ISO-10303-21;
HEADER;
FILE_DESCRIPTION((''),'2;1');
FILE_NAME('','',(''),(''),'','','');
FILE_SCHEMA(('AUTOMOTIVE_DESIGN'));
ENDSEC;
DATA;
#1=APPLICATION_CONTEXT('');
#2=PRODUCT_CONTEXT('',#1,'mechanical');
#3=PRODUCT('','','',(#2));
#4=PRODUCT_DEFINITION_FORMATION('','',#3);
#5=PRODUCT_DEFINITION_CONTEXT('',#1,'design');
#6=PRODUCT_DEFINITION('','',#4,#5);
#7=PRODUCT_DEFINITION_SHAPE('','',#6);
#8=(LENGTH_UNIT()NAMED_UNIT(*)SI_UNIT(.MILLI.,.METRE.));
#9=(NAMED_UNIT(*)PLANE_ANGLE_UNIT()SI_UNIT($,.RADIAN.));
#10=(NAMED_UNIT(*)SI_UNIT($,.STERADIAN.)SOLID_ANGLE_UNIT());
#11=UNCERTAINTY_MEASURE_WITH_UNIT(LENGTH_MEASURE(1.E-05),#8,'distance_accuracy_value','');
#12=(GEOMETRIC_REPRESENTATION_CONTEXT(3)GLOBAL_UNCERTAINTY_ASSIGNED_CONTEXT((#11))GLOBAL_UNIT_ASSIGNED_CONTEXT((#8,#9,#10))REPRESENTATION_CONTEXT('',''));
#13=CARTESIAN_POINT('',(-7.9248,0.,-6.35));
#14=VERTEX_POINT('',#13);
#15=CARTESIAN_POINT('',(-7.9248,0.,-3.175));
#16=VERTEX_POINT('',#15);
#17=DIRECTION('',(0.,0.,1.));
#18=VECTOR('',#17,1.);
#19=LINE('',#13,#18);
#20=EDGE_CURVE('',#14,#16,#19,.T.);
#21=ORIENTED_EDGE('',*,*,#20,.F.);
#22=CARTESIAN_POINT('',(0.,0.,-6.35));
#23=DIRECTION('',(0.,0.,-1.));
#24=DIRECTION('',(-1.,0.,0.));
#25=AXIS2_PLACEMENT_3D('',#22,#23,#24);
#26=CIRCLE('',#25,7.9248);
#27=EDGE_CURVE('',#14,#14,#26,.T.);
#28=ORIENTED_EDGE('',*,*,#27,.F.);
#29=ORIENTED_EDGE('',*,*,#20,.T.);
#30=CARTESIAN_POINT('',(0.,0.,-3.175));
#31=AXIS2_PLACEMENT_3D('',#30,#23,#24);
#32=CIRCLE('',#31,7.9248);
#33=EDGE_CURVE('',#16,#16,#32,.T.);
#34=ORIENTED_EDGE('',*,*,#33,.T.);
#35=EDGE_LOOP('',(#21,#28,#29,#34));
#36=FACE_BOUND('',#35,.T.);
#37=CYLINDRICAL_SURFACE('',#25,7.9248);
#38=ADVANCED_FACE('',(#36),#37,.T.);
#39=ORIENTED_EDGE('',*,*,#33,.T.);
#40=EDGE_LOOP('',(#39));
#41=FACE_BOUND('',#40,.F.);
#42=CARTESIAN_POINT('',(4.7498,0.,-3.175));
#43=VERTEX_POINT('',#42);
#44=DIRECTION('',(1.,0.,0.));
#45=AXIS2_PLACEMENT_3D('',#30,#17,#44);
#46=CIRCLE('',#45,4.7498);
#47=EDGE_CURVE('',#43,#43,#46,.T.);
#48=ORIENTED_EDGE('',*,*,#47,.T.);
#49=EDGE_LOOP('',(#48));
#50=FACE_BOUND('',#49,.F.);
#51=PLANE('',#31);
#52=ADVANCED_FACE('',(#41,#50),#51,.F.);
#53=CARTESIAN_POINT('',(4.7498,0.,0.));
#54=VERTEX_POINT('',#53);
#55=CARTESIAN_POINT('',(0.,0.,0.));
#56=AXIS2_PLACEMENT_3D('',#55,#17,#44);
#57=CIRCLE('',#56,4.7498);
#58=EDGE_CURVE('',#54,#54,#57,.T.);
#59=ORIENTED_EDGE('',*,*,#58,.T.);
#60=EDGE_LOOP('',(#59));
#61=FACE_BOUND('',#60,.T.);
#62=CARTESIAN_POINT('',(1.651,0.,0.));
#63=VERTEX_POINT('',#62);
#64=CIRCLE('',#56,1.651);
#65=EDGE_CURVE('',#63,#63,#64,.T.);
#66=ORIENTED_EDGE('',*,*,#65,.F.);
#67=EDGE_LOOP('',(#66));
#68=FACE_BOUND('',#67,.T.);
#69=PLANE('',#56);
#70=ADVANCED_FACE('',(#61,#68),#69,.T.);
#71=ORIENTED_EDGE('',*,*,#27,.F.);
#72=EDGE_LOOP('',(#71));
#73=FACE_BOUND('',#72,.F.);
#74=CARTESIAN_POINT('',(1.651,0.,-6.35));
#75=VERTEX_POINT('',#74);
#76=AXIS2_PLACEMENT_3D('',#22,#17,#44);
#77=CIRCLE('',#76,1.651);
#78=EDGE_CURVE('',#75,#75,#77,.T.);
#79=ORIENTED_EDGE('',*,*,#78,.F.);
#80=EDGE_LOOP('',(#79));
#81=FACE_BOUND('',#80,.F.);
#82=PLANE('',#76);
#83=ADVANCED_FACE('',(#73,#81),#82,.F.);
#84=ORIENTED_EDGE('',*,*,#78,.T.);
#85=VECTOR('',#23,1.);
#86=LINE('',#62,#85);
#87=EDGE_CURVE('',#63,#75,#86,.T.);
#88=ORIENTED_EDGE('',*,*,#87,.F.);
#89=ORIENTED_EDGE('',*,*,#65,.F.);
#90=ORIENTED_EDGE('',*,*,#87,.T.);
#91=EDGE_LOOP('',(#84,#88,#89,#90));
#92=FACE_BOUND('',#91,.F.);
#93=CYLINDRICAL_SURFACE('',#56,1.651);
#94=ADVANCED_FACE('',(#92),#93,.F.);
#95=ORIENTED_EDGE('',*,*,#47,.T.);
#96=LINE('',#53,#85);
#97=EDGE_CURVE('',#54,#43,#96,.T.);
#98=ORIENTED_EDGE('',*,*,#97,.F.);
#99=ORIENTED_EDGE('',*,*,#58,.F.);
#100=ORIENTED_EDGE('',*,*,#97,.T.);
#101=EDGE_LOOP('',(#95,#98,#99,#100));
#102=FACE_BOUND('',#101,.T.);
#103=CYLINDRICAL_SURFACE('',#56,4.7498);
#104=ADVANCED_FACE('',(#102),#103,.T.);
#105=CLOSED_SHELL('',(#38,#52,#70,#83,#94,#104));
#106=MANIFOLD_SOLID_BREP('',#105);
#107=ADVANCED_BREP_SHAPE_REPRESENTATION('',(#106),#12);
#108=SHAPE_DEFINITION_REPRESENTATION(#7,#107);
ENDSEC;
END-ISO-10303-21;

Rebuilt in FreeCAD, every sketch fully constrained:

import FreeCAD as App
import Part
import Sketcher

V = App.Vector
Q = App.Units.Quantity

doc = App.newDocument("Part")
body = doc.addObject("PartDesign::Body", "Body")

# Sketch on XY plane
sketch1 = doc.addObject("Sketcher::SketchObject", "Sketch")
body.addObject(sketch1)
sketch1.AttachmentSupport = (doc.XY_Plane, [""])
sketch1.MapMode = "FlatFace"
sketch1.addGeometry([
    Part.Circle(V(0, 0, 0), V(0, 0, 1), 4.7),
    Part.Circle(V(0, 0, 0), V(0, 0, 1), 1.7),
], False)
sketch1.addConstraint([
    Sketcher.Constraint("Coincident", 0, 3, -1, 1),
    Sketcher.Constraint("Coincident", 1, 3, -1, 1),
    Sketcher.Constraint("Diameter", 1, Q("0.13 in")),
    Sketcher.Constraint("Diameter", 0, Q("0.374 in")),
])
pad1 = doc.addObject("PartDesign::Pad", "Pad")
body.addObject(pad1)
pad1.Profile = sketch1
pad1.Length = Q("0.25 in")
pad1.Reversed = True

# Sketch on XY plane
sketch2 = doc.addObject("Sketcher::SketchObject", "Sketch001")
body.addObject(sketch2)
sketch2.AttachmentSupport = (doc.XY_Plane, [""])
sketch2.MapMode = "FlatFace"
sketch2.AttachmentOffset = App.Placement(V(0, 0, -0.25 * 25.4), App.Rotation())
sketch2.addGeometry([
    Part.Circle(V(0, 0, 0), V(0, 0, 1), 7.9),
    Part.Circle(V(0, 0, 0), V(0, 0, 1), 4.7),
], False)
sketch2.addConstraint([
    Sketcher.Constraint("Coincident", 0, 3, -1, 1),
    Sketcher.Constraint("Coincident", 1, 3, -1, 1),
    Sketcher.Constraint("Diameter", 0, Q("0.624 in")),
    Sketcher.Constraint("Diameter", 1, Q("0.374 in")),
])
pad2 = doc.addObject("PartDesign::Pad", "Pad001")
body.addObject(pad2)
pad2.Profile = sketch2
pad2.Length = Q("0.125 in")

doc.recompute()
